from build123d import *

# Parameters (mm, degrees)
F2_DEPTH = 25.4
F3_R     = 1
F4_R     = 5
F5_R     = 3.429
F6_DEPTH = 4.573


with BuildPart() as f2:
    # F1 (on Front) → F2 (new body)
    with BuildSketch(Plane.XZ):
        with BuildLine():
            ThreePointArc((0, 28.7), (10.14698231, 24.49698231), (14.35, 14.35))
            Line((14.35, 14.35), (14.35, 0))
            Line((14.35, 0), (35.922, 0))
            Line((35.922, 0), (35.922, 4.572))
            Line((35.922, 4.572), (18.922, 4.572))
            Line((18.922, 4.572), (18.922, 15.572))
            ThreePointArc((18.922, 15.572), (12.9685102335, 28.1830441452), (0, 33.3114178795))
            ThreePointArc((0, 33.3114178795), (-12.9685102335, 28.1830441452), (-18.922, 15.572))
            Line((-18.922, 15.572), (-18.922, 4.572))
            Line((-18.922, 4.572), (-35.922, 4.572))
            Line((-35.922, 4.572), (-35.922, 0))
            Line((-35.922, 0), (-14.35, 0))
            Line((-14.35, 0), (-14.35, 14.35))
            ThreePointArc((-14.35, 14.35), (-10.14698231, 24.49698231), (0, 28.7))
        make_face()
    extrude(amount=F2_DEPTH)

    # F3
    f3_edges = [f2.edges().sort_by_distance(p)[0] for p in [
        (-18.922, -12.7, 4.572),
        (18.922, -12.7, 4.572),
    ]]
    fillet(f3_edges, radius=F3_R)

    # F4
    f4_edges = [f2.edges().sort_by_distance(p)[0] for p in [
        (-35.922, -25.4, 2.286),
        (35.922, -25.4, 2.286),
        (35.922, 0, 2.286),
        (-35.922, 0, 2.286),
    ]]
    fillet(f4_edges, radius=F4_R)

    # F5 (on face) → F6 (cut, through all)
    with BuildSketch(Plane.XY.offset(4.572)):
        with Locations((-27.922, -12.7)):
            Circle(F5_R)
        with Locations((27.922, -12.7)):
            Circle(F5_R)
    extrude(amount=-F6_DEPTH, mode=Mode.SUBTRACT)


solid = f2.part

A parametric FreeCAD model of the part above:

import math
import FreeCAD as App
import Part
import Sketcher

V = App.Vector
Q = App.Units.Quantity


def edges_at(feature, points):
    """Names of the edges that pass closest to the given points."""
    edges = feature.Shape.Edges
    near = lambda p: min(range(len(edges)), key=lambda i: edges[i].distToShape(Part.Vertex(*p))[0])
    return sorted({f"Edge{near(p) + 1}" for p in points})

doc = App.newDocument("Part")
body = doc.addObject("PartDesign::Body", "Body")

# Sketch on XZ plane
sketch1 = body.newObject("Sketcher::SketchObject", "Sketch")
sketch1.AttachmentSupport = (doc.getObject("XZ_Plane"), [""])
sketch1.MapMode = "FlatFace"
sketch1.addGeometry(Part.ArcOfCircle(Part.Circle(V(0, 14.3, 0), V(0, 0, 1), 14.3), math.radians(0), math.radians(90)), False)
sketch1.addGeometry(Part.LineSegment(V(14.3, 14.3, 0), V(14.3, 0, 0)), False)
sketch1.addGeometry(Part.LineSegment(V(14.3, 0, 0), V(35.9, 0, 0)), False)
sketch1.addGeometry(Part.LineSegment(V(35.9, 0, 0), V(35.9, 4.6, 0)), False)
sketch1.addGeometry(Part.LineSegment(V(35.9, 4.6, 0), V(18.9, 4.6, 0)), False)
sketch1.addGeometry(Part.LineSegment(V(18.9, 4.6, 0), V(18.9, 15.6, 0)), False)
sketch1.addGeometry(Part.ArcOfCircle(Part.Circle(V(0, 14.3, 0), V(0, 0, 1), 19), math.radians(4), math.radians(90)), False)
sketch1.addGeometry(Part.ArcOfCircle(Part.Circle(V(0, 14.3, 0), V(0, 0, 1), 19), math.radians(90), math.radians(176)), False)
sketch1.addGeometry(Part.LineSegment(V(-18.9, 15.6, 0), V(-18.9, 4.6, 0)), False)
sketch1.addGeometry(Part.LineSegment(V(-18.9, 4.6, 0), V(-35.9, 4.6, 0)), False)
sketch1.addGeometry(Part.LineSegment(V(-35.9, 4.6, 0), V(-35.9, 0, 0)), False)
sketch1.addGeometry(Part.LineSegment(V(-35.9, 0, 0), V(-14.3, 0, 0)), False)
sketch1.addGeometry(Part.LineSegment(V(-14.3, 0, 0), V(-14.3, 14.3, 0)), False)
sketch1.addGeometry(Part.ArcOfCircle(Part.Circle(V(0, 14.3, 0), V(0, 0, 1), 14.3), math.radians(90), math.radians(180)), False)
sketch1.addConstraint(Sketcher.Constraint("Tangent", 0, 1, 1, 1))
sketch1.addConstraint(Sketcher.Constraint("Coincident", 1, 2, 2, 1))
sketch1.addConstraint(Sketcher.Constraint("Coincident", 2, 2, 3, 1))
sketch1.addConstraint(Sketcher.Constraint("Coincident", 3, 2, 4, 1))
sketch1.addConstraint(Sketcher.Constraint("Coincident", 4, 2, 5, 1))
sketch1.addConstraint(Sketcher.Constraint("Coincident", 5, 2, 6, 1))
sketch1.addConstraint(Sketcher.Constraint("Tangent", 6, 2, 7, 1))
sketch1.addConstraint(Sketcher.Constraint("Coincident", 7, 2, 8, 1))
sketch1.addConstraint(Sketcher.Constraint("Coincident", 8, 2, 9, 1))
sketch1.addConstraint(Sketcher.Constraint("Coincident", 9, 2, 10, 1))
sketch1.addConstraint(Sketcher.Constraint("Coincident", 10, 2, 11, 1))
sketch1.addConstraint(Sketcher.Constraint("Coincident", 11, 2, 12, 1))
sketch1.addConstraint(Sketcher.Constraint("Tangent", 12, 2, 13, 2))
sketch1.addConstraint(Sketcher.Constraint("Tangent", 13, 1, 0, 2))
sketch1.addConstraint(Sketcher.Constraint("Vertical", 1))
sketch1.addConstraint(Sketcher.Constraint("Horizontal", 2))
sketch1.addConstraint(Sketcher.Constraint("Vertical", 3))
sketch1.addConstraint(Sketcher.Constraint("Horizontal", 4))
sketch1.addConstraint(Sketcher.Constraint("Vertical", 5))
sketch1.addConstraint(Sketcher.Constraint("Vertical", 8))
sketch1.addConstraint(Sketcher.Constraint("Horizontal", 9))
sketch1.addConstraint(Sketcher.Constraint("Vertical", 10))
sketch1.addConstraint(Sketcher.Constraint("Horizontal", 11))
sketch1.addConstraint(Sketcher.Constraint("Vertical", 12))
sketch1.addConstraint(Sketcher.Constraint("Coincident", 6, 3, 0, 3))
sketch1.addConstraint(Sketcher.Constraint("Equal", 6, 7))
sketch1.addConstraint(Sketcher.Constraint("Equal", 0, 13))
sketch1.addConstraint(Sketcher.Constraint("Symmetric", 2, 2, 10, 2, -1, 1))
sketch1.addConstraint(Sketcher.Constraint("Symmetric", 5, 2, 7, 2, -2))
sketch1.addConstraint(Sketcher.Constraint("PointOnObject", 1, 2, -1))
sketch1.addConstraint(Sketcher.Constraint("PointOnObject", 6, 2, -2))
sketch1.addConstraint(Sketcher.Constraint("PointOnObject", 13, 1, -2))
sketch1.addConstraint(Sketcher.Constraint("Horizontal", 4, 2, 8, 2))
sketch1.addConstraint(Sketcher.Constraint("DistanceX", 4, 2, 4, 1, Q("17 mm")))
sketch1.addConstraint(Sketcher.Constraint("DistanceY", 5, 1, 5, 2, Q("11 mm")))
sketch1.addConstraint(Sketcher.Constraint("Radius", 0, Q("14.35 mm")))
sketch1.addConstraint(Sketcher.Constraint("DistanceY", 1, 2, 1, 1, Q("14.35 mm")))
sketch1.addConstraint(Sketcher.Constraint("DistanceX", 2, 1, 2, 2, Q("21.572 mm")))
sketch1.addConstraint(Sketcher.Constraint("DistanceY", 3, 1, 3, 2, Q("4.572 mm")))
pad1 = body.newObject("PartDesign::Pad", "Pad")
pad1.Profile = sketch1
pad1.Length = 25.4
doc.recompute()

fillet = body.newObject("PartDesign::Fillet", "Fillet")
fillet.Base = (pad1, edges_at(pad1, [(-18.922, -12.7, 4.572), (18.922, -12.7, 4.572)]))
fillet.Radius = 1
doc.recompute()

fillet2 = body.newObject("PartDesign::Fillet", "Fillet001")
fillet2.Base = (fillet, edges_at(fillet, [
    (-35.922, -25.4, 2.286),
    (35.922, -25.4, 2.286),
    (35.922, 0, 2.286),
    (-35.922, 0, 2.286),
]))
fillet2.Radius = 5

# Sketch on XY plane
sketch2 = body.newObject("Sketcher::SketchObject", "Sketch001")
sketch2.AttachmentSupport = (doc.getObject("XY_Plane"), [""])
sketch2.MapMode = "FlatFace"
sketch2.AttachmentOffset = App.Placement(V(0, 0, 4.572), App.Rotation())
sketch2.addGeometry(Part.Circle(V(-27.9, -12.7, 0), V(0, 0, 1), 3.4), False)
sketch2.addGeometry(Part.Circle(V(27.9, -12.7, 0), V(0, 0, 1), 3.4), False)
sketch2.addConstraint(Sketcher.Constraint("Equal", 0, 1))
sketch2.addConstraint(Sketcher.Constraint("Symmetric", 0, 3, 1, 3, -2))
sketch2.addConstraint(Sketcher.Constraint("Diameter", 0, Q("6.858 mm")))
sketch2.addConstraint(Sketcher.Constraint("DistanceY", 0, 3, -1, 1, Q("12.7 mm")))
sketch2.addConstraint(Sketcher.Constraint("DistanceX", 0, 3, -1, 1, Q("27.922 mm")))
pocket1 = body.newObject("PartDesign::Pocket", "Pocket")
pocket1.Profile = sketch2
pocket1.Type = "ThroughAll"

doc.recompute()
